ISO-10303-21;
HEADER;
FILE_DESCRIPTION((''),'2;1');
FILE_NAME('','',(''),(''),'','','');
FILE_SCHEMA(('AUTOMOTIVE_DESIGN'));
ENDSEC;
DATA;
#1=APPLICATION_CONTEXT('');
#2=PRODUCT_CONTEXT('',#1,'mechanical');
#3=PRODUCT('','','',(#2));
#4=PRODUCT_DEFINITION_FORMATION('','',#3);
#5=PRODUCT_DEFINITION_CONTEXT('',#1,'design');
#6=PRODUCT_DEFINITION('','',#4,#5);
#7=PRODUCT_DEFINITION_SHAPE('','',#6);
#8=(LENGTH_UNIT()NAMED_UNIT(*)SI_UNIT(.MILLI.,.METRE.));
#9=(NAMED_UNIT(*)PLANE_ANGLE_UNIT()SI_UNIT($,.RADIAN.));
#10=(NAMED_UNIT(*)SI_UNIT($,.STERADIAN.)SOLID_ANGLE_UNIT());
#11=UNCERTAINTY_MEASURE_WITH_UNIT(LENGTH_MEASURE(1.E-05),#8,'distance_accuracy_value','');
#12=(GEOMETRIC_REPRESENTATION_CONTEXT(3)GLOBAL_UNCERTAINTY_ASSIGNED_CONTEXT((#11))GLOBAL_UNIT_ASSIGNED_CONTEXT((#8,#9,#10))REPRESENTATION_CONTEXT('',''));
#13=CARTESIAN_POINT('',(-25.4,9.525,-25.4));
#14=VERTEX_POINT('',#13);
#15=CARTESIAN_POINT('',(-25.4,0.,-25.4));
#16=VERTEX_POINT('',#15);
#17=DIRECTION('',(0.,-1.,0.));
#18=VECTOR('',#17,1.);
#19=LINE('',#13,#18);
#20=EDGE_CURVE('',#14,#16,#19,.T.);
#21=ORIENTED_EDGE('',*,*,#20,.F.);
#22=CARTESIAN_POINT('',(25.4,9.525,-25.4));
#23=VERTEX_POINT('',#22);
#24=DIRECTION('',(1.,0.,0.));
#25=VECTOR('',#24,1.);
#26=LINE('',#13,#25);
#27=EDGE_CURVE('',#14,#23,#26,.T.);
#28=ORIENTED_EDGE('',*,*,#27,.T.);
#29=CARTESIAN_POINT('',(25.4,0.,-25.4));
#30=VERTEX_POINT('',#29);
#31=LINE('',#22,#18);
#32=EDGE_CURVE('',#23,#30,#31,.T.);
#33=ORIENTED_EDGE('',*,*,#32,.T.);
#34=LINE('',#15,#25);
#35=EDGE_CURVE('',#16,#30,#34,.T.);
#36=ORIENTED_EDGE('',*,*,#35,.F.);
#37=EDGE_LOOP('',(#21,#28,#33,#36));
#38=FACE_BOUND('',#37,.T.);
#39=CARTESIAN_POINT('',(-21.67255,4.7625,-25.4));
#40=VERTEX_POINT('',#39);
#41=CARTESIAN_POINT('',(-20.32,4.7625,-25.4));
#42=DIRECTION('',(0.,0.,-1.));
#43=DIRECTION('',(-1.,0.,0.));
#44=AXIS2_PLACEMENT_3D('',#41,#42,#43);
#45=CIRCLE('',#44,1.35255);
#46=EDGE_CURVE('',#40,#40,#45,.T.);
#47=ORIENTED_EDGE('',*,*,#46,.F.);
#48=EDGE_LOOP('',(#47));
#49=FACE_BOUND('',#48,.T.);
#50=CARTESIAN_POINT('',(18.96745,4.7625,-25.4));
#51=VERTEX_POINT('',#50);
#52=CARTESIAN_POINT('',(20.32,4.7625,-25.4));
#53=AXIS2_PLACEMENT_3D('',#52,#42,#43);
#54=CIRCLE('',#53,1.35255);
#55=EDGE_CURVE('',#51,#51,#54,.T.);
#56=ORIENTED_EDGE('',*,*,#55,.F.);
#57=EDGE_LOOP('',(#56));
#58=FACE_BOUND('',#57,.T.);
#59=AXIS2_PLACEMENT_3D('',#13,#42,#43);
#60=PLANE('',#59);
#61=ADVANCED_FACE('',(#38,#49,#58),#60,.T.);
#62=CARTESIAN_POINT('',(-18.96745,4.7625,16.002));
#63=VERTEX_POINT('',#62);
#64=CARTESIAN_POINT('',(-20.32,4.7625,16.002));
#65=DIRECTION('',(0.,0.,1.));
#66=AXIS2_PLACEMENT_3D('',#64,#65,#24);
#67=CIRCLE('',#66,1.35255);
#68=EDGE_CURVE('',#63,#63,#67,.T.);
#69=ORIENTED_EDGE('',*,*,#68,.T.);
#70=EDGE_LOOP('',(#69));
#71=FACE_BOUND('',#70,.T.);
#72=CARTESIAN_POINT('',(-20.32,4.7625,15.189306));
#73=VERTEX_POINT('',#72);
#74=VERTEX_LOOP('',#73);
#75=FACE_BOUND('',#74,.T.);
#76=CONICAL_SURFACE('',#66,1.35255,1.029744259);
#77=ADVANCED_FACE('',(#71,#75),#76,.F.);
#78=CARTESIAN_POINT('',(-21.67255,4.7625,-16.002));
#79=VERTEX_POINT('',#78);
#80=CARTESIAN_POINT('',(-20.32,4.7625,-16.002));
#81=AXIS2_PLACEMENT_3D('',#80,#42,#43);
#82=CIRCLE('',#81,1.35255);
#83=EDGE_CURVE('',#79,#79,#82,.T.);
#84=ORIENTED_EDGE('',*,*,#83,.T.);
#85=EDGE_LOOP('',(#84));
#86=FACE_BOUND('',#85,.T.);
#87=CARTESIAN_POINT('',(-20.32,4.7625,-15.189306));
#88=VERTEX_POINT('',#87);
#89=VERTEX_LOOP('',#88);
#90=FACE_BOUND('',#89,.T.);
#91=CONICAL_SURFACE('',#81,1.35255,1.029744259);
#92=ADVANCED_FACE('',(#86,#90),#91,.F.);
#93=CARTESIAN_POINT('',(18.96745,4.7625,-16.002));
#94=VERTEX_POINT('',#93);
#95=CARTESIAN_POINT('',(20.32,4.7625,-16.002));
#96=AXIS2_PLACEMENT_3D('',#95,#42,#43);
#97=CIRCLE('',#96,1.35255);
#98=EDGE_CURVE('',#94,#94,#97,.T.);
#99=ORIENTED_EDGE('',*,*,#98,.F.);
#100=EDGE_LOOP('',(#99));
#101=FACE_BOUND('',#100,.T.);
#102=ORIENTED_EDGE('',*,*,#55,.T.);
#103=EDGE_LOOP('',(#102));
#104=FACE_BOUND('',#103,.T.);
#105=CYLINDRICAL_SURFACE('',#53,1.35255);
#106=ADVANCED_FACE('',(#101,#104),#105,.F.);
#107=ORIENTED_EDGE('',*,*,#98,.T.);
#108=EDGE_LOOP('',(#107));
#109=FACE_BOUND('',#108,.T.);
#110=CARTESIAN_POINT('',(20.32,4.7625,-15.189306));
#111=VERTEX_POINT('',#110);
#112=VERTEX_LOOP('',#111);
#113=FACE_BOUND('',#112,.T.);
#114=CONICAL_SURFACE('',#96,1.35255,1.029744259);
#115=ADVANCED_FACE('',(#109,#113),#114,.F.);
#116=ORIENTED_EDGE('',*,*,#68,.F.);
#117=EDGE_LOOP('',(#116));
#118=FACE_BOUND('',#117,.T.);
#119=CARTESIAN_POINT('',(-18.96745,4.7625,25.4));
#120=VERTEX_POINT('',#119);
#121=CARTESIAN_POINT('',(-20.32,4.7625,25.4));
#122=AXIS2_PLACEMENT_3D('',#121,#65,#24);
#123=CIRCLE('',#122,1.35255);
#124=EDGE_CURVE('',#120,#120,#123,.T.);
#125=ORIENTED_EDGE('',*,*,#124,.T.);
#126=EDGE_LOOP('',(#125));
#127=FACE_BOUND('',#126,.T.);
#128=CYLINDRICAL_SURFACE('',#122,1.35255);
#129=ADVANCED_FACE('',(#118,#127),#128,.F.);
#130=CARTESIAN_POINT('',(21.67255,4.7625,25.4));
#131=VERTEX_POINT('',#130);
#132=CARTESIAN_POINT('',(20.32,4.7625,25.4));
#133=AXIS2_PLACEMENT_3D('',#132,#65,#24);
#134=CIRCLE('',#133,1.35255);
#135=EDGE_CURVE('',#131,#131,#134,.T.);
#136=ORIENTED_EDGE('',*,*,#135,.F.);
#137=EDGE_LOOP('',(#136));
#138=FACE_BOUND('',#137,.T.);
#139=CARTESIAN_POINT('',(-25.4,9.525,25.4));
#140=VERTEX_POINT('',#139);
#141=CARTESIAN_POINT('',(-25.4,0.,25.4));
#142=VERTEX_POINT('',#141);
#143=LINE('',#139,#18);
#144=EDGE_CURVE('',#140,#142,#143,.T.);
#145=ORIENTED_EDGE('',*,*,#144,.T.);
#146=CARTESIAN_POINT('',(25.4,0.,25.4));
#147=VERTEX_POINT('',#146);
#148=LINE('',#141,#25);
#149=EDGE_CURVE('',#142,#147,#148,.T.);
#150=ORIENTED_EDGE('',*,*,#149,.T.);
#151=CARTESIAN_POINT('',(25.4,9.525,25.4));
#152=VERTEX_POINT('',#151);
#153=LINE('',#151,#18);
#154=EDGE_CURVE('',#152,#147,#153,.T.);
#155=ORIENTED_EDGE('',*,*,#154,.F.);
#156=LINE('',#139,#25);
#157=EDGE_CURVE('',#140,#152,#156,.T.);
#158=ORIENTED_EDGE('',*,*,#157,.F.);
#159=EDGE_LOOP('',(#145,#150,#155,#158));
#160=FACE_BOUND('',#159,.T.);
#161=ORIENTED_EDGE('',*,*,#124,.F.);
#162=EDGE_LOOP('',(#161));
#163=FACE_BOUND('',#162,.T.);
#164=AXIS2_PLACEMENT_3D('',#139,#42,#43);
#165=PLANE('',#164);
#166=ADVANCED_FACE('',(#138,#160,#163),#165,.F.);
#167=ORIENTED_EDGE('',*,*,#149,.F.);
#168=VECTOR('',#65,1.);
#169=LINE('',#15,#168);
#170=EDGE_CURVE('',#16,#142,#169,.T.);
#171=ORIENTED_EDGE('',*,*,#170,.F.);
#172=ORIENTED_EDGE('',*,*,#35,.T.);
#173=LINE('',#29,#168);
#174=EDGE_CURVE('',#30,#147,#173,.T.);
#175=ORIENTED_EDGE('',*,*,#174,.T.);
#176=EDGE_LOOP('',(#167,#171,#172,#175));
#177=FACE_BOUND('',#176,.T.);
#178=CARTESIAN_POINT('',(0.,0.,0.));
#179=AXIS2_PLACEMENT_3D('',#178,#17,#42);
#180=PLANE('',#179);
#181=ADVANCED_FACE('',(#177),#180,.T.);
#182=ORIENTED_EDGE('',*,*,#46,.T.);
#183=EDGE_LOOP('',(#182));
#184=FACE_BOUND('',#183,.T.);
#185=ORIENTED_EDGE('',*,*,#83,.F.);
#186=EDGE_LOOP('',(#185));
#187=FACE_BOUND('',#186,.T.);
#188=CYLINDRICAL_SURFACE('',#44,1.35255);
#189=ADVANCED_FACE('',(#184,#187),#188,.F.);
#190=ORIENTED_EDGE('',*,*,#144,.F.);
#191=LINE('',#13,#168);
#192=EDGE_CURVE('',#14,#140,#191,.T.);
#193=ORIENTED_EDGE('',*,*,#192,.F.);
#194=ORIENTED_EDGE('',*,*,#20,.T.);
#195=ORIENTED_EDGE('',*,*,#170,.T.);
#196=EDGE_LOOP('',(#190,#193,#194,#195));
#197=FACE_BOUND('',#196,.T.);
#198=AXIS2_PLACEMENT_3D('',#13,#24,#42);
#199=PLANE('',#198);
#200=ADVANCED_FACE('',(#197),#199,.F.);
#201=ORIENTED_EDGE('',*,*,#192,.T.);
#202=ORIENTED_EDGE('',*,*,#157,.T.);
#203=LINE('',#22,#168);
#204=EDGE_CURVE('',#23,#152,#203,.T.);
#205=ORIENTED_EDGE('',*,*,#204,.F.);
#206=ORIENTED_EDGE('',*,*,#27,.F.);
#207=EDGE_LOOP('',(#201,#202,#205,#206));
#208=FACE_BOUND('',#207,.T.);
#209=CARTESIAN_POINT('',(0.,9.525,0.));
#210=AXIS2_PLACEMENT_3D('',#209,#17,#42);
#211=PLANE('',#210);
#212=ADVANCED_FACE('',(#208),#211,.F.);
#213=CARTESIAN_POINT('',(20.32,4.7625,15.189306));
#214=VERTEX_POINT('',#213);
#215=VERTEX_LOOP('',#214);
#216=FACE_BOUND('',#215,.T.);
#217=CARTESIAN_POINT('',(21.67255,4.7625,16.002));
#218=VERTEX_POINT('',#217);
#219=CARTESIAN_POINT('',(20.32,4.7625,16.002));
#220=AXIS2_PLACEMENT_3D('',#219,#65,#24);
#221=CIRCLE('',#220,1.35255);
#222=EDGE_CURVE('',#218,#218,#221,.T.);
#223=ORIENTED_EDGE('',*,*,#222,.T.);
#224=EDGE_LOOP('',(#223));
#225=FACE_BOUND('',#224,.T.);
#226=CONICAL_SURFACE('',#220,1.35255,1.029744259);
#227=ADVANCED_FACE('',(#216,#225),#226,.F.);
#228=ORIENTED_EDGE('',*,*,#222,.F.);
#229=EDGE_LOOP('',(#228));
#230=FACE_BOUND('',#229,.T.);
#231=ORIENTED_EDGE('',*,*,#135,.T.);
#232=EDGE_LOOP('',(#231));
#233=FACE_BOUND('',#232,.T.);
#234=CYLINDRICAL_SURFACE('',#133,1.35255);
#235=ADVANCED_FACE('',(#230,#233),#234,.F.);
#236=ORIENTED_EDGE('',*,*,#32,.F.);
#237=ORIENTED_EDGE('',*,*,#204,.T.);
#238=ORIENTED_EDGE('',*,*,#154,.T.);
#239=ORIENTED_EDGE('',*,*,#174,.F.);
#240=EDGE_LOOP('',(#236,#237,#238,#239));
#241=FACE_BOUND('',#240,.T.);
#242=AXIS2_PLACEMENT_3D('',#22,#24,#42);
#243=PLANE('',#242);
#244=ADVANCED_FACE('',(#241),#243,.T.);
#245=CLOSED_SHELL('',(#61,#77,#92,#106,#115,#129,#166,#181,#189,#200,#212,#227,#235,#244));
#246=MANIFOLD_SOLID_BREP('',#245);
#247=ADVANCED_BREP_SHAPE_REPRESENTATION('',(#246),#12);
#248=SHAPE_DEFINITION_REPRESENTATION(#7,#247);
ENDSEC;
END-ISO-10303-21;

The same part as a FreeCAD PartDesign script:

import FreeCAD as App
import Part
import Sketcher
Q = App.Units.Quantity


def add_polygon(sketch, points):
    """Adds a closed chain of lines whose ends are joined by coincident constraints."""
    first, n = sketch.GeometryCount, len(points)
    for a, b in zip(points, points[1:] + points[:1]):
        sketch.addGeometry(Part.LineSegment(App.Vector(*a, 0), App.Vector(*b, 0)), False)
    for i in range(n):
        sketch.addConstraint(Sketcher.Constraint("Coincident", first + i, 2, first + (i + 1) % n, 1))

doc = App.newDocument("Part")
params = doc.addObject("Spreadsheet::Sheet", "Params")
for row, (alias, value) in enumerate([
    ("sketch1_width", "2 in"),
    ("pad1_length", "0.375 in"),
    ("hole_diameter", "0.1065 in"),
    ("hole_depth", "0.37 in"),
    ("hole2_diameter", "0.1065 in"),
    ("hole2_depth", "0.37 in"),
], start=1):
    params.set(f"A{row}", alias)
    params.set(f"B{row}", "=" + value)
    params.setAlias(f"B{row}", alias)

body = doc.addObject("PartDesign::Body", "Body")

sketch1 = body.newObject("Sketcher::SketchObject", "Sketch")
sketch1.AttachmentSupport = (doc.getObject("XZ_Plane"), [""])
sketch1.MapMode = "FlatFace"
add_polygon(sketch1, [(-25.4, -25.4), (-25.4, 25.4), (25.4, 25.4), (25.4, -25.4)])
sketch1.addConstraint(Sketcher.Constraint("Vertical", 0))
sketch1.addConstraint(Sketcher.Constraint("Horizontal", 1))
sketch1.addConstraint(Sketcher.Constraint("Vertical", 2))
sketch1.addConstraint(Sketcher.Constraint("Horizontal", 3))
sketch1.addConstraint(Sketcher.Constraint("Symmetric", 0, 2, 2, 2, -1, 1))
sketch1.addConstraint(Sketcher.Constraint("Equal", 3, 0))
sketch1.addConstraint(Sketcher.Constraint("DistanceX", 1, 1, 1, 2, Q("2 in")))
sketch1.setExpression("Constraints[10]", "Params.sketch1_width")
pad1 = body.newObject("PartDesign::Pad", "Pad")
pad1.Profile = sketch1
pad1.setExpression("Length", "Params.pad1_length")
pad1.Reversed = True

sketch2 = body.newObject("Sketcher::SketchObject", "Sketch001")
sketch2.AttachmentSupport = (doc.getObject("XY_Plane"), [""])
sketch2.MapMode = "FlatFace"
sketch2.AttachmentOffset = App.Placement(App.Vector(0, 0, 1 * 25.4), App.Rotation())
sketch2.addGeometry(Part.Circle(App.Vector(-20.32, 4.7625, 0), App.Vector(0, 0, 1), 1.35255), False)
sketch2.addGeometry(Part.Circle(App.Vector(20.32, 4.7625, 0), App.Vector(0, 0, 1), 1.35255), False)
sketch2.addConstraint(Sketcher.Constraint("Equal", 0, 1))
sketch2.addConstraint(Sketcher.Constraint("Symmetric", 0, 3, 1, 3, -2))
sketch2.addConstraint(Sketcher.Constraint("Diameter", 0, Q("0.1065 in")))
sketch2.addConstraint(Sketcher.Constraint("DistanceX", 0, 3, -1, 1, Q("0.8 in")))
sketch2.addConstraint(Sketcher.Constraint("DistanceY", -1, 1, 0, 3, Q("0.1875 in")))
doc.recompute()
hole = body.newObject("PartDesign::Hole", "Hole")
hole.Profile = sketch2
hole.ThreadType = "None"
hole.setExpression("Diameter", "Params.hole_diameter")
hole.DepthType = "Dimension"
hole.setExpression("Depth", "Params.hole_depth")
hole.DrillPoint = "Angled"
hole.DrillPointAngle = 118

sketch3 = body.newObject("Sketcher::SketchObject", "Sketch002")
sketch3.AttachmentSupport = (doc.getObject("XY_Plane"), [""])
sketch3.MapMode = "FlatFace"
sketch3.AttachmentOffset = App.Placement(App.Vector(0, 0, -1 * 25.4), App.Rotation())
sketch3.addGeometry(Part.Circle(App.Vector(20.32, 4.7625, 0), App.Vector(0, 0, 1), 1.35255), False)
sketch3.addGeometry(Part.Circle(App.Vector(-20.32, 4.7625, 0), App.Vector(0, 0, 1), 1.35255), False)
sketch3.addConstraint(Sketcher.Constraint("Equal", 0, 1))
sketch3.addConstraint(Sketcher.Constraint("Symmetric", 0, 3, 1, 3, -2))
sketch3.addConstraint(Sketcher.Constraint("Diameter", 0, Q("0.1065 in")))
sketch3.addConstraint(Sketcher.Constraint("DistanceX", -1, 1, 0, 3, Q("0.8 in")))
sketch3.addConstraint(Sketcher.Constraint("DistanceY", -1, 1, 0, 3, Q("0.1875 in")))
doc.recompute()
hole2 = body.newObject("PartDesign::Hole", "Hole001")
hole2.Profile = sketch3
hole2.ThreadType = "None"
hole2.setExpression("Diameter", "Params.hole2_diameter")
hole2.DepthType = "Dimension"
hole2.setExpression("Depth", "Params.hole2_depth")
hole2.DrillPoint = "Angled"
hole2.DrillPointAngle = 118
hole2.Reversed = True

doc.recompute()
